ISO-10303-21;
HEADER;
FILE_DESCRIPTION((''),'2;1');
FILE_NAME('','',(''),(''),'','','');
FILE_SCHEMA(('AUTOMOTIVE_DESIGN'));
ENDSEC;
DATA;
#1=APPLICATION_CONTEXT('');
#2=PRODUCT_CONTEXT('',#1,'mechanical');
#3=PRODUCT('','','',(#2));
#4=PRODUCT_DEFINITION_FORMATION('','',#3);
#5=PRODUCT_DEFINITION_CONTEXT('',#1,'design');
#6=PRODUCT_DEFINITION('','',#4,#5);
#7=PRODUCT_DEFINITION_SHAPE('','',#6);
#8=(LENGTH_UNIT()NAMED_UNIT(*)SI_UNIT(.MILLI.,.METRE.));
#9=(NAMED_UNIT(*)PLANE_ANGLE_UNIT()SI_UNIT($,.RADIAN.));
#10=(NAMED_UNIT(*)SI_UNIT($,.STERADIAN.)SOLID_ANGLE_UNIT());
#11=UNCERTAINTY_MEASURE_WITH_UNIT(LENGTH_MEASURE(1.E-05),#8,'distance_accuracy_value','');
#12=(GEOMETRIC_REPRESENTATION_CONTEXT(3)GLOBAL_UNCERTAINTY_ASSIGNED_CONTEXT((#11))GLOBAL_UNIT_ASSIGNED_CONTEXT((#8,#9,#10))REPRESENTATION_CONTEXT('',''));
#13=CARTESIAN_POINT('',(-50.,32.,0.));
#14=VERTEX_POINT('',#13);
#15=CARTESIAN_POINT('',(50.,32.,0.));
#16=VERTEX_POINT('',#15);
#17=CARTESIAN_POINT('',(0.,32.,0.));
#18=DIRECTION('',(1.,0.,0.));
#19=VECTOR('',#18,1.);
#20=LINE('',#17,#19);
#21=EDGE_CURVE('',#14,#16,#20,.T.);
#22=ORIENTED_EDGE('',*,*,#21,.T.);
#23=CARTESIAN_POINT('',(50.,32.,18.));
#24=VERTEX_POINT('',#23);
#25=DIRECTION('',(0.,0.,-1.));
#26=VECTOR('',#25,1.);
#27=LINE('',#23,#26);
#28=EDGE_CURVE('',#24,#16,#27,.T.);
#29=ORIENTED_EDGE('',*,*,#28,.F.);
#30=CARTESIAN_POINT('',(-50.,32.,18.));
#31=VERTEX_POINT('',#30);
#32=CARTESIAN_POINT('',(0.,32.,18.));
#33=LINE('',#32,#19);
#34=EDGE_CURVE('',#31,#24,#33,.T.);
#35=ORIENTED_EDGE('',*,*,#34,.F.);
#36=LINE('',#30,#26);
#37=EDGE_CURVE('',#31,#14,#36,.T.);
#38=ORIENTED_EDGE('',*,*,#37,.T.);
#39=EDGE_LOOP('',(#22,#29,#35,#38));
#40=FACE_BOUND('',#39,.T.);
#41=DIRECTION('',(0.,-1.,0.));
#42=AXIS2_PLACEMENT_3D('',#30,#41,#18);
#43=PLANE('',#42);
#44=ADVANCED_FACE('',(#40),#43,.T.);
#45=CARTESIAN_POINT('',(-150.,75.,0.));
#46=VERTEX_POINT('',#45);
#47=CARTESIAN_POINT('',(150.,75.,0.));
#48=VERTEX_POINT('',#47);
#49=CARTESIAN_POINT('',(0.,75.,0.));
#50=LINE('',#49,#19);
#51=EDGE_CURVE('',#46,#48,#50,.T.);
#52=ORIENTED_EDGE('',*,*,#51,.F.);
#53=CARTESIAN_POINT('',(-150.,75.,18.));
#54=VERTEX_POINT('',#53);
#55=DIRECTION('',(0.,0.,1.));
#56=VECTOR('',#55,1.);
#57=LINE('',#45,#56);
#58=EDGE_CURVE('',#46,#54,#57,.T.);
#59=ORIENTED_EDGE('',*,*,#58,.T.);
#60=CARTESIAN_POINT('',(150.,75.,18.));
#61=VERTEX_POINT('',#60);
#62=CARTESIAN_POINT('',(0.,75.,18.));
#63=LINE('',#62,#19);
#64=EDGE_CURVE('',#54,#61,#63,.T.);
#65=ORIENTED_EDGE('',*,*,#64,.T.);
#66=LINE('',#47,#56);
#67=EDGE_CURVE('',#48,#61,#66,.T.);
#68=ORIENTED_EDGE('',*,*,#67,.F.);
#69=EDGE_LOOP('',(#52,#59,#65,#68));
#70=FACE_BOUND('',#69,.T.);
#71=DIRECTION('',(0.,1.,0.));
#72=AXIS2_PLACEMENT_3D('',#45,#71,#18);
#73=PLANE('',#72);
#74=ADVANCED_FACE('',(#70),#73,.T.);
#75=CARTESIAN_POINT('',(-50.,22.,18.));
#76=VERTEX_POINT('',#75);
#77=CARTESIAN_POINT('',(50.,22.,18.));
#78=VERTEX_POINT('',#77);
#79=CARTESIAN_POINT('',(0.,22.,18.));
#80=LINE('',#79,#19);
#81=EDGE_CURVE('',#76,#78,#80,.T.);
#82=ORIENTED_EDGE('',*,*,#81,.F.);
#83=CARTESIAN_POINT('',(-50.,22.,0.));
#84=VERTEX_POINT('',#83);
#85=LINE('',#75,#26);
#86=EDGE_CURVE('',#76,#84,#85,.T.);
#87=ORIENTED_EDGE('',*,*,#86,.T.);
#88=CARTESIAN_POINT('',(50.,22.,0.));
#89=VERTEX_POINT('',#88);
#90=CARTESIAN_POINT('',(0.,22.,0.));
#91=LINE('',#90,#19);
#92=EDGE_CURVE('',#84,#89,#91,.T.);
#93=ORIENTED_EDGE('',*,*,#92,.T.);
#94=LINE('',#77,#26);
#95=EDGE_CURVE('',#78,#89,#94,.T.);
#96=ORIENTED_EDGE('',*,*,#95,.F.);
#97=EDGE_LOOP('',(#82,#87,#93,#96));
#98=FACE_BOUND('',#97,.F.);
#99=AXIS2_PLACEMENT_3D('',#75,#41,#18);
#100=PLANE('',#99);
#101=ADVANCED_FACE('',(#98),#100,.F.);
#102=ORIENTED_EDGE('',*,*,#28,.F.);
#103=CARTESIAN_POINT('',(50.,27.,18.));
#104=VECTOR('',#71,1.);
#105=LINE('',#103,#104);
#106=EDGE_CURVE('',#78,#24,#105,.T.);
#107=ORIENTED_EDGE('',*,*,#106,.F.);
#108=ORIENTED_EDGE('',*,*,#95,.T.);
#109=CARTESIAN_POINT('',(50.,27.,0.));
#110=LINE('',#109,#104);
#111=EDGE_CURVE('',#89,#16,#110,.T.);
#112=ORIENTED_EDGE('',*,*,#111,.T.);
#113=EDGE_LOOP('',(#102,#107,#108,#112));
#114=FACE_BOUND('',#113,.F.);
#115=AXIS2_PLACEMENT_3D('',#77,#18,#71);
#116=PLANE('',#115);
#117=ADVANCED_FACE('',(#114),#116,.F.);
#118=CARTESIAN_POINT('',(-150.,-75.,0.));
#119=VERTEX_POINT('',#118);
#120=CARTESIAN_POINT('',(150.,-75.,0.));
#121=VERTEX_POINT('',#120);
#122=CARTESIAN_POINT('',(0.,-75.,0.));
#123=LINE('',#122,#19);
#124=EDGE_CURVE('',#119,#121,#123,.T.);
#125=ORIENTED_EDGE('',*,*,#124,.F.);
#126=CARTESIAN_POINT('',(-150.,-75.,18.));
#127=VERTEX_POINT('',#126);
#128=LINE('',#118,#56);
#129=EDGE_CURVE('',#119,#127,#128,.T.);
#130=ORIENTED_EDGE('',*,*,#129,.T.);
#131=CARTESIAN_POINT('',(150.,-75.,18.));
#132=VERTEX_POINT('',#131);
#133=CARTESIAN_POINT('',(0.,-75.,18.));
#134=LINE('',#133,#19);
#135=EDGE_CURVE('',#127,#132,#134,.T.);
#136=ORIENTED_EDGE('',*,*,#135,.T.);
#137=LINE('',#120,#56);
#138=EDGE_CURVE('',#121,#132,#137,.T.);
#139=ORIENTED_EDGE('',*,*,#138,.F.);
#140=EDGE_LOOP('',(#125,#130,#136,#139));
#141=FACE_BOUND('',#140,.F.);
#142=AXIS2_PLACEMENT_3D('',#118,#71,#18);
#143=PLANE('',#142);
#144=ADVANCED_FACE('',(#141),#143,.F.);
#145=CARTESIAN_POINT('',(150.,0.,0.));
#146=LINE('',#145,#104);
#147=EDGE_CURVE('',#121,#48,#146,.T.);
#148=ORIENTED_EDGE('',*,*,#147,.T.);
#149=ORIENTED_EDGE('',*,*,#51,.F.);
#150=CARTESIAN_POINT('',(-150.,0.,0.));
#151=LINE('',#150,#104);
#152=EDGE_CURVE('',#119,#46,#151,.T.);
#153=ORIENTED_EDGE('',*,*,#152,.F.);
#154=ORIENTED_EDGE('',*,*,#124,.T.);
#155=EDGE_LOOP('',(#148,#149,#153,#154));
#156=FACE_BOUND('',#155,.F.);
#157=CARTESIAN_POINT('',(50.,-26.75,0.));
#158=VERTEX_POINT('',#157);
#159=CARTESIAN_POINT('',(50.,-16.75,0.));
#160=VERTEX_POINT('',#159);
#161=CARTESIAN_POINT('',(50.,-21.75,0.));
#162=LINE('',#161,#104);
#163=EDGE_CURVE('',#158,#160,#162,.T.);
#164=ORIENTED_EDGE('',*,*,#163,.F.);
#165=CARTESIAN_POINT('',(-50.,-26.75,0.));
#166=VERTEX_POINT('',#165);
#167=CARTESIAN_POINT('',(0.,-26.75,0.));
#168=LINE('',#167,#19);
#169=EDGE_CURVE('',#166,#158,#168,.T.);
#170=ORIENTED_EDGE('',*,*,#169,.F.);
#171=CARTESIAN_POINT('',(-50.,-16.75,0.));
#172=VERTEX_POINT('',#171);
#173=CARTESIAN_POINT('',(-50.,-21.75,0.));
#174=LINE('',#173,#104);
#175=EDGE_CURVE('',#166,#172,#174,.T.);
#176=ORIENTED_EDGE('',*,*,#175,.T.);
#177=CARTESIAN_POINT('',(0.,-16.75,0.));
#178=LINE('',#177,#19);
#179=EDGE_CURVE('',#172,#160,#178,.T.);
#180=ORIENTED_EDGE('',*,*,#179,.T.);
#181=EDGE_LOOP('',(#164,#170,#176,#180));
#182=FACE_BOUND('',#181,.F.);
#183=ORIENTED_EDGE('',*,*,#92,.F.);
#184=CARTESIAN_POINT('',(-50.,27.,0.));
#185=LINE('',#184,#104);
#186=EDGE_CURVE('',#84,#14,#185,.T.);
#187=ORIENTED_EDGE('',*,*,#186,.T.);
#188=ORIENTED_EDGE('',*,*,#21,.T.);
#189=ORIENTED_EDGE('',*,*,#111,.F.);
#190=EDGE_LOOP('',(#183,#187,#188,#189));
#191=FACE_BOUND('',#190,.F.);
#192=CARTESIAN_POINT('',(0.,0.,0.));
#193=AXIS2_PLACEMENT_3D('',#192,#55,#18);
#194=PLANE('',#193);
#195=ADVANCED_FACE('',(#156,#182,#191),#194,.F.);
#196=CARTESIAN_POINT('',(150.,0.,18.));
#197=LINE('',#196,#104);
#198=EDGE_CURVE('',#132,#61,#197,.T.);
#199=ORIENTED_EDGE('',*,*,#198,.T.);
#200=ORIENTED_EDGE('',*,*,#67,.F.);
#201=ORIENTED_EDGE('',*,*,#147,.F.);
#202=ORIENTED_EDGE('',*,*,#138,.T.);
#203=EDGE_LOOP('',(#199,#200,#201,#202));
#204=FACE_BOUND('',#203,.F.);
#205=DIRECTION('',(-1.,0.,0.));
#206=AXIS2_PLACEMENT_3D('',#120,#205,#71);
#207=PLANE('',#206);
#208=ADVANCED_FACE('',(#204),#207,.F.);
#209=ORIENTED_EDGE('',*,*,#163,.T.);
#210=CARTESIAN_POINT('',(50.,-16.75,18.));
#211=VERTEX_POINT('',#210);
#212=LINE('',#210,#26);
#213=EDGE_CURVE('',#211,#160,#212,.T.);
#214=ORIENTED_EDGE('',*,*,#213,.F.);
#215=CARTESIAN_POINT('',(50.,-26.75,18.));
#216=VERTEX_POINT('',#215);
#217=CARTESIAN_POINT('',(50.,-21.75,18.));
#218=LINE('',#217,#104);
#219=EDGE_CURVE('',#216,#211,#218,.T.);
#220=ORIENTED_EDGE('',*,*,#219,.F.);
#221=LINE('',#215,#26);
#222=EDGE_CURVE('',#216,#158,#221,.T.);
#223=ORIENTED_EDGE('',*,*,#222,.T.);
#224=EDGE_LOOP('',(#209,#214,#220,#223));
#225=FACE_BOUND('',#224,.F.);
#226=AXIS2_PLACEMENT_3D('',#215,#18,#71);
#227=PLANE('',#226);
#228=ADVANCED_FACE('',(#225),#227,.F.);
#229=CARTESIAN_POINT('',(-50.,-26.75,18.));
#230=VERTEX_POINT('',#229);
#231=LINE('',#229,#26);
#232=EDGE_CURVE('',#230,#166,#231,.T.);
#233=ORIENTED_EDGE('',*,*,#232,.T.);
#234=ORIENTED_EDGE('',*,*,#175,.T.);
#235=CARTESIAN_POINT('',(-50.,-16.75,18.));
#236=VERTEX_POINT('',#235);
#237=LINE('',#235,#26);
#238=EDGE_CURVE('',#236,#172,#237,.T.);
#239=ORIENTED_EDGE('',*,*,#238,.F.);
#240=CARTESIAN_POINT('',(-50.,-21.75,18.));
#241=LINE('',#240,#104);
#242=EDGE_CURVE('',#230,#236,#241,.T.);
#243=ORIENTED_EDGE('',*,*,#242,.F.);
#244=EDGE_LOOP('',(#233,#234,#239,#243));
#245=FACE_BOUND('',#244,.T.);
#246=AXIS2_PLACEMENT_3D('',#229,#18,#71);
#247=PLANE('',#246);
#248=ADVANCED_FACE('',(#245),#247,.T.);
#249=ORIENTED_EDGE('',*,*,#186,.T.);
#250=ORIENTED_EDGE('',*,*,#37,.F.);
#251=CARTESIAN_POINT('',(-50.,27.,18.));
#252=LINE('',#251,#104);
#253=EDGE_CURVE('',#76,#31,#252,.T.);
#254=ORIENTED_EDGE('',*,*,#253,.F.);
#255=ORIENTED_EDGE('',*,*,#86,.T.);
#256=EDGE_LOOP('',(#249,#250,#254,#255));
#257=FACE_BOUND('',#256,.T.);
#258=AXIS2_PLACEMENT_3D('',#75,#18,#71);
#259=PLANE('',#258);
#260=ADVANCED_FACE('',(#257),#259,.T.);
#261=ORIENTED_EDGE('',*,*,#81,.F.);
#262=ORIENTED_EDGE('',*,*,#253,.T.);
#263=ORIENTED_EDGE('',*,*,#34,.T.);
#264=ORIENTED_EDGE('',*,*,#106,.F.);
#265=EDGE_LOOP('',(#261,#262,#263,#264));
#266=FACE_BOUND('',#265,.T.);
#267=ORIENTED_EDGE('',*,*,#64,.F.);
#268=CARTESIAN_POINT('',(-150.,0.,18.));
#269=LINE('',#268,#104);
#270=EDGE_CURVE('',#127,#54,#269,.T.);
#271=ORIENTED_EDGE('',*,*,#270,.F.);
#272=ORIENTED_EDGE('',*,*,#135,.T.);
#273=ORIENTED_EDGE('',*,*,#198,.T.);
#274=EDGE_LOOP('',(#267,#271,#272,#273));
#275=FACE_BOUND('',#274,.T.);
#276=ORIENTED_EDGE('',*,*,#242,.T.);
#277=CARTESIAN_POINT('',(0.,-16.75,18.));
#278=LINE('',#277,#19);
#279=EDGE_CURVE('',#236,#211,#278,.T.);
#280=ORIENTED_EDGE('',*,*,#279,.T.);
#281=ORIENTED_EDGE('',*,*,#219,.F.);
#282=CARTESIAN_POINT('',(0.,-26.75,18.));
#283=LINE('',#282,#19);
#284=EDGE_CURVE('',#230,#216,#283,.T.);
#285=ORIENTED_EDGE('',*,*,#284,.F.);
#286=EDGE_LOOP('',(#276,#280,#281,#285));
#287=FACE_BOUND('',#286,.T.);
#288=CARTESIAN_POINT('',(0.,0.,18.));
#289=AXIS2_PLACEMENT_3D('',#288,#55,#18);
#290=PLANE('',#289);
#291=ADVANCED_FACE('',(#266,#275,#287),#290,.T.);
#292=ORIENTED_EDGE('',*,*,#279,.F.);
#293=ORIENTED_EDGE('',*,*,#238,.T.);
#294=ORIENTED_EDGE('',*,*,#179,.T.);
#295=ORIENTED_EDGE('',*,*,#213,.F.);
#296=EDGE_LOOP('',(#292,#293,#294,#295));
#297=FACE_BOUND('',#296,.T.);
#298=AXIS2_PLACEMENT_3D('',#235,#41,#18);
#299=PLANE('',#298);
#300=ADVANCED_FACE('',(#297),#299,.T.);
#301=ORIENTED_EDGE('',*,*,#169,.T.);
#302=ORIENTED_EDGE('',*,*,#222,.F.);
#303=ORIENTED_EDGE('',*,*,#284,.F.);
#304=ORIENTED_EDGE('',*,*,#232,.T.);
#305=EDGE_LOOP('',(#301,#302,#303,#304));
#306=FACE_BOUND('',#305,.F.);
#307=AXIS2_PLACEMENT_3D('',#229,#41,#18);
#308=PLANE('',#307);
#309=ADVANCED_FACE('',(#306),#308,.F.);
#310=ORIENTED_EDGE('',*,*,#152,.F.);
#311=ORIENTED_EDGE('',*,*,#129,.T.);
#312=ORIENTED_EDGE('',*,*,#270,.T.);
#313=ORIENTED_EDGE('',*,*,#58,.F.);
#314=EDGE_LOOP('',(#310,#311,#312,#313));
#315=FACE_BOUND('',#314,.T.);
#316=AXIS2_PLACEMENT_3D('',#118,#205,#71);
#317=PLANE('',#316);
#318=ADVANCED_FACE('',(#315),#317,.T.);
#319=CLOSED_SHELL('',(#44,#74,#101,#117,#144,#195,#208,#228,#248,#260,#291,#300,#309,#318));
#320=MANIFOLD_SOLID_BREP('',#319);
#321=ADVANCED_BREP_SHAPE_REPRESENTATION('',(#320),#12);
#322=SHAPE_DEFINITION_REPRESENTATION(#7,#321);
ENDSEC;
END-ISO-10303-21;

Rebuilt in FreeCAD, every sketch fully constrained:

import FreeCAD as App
import Part
import Sketcher

V = App.Vector
Q = App.Units.Quantity

doc = App.newDocument("Part")
body = doc.addObject("PartDesign::Body", "Body")

sketch1 = body.newObject("Sketcher::SketchObject", "Sketch")
sketch1.AttachmentSupport = (doc.getObject("XY_Plane"), [""])
sketch1.MapMode = "FlatFace"
sketch1.addGeometry(Part.LineSegment(V(-150, 75, 0), V(-150, -75, 0)), False)
sketch1.addGeometry(Part.LineSegment(V(-150, -75, 0), V(150, -75, 0)), False)
sketch1.addGeometry(Part.LineSegment(V(150, -75, 0), V(150, 75, 0)), False)
sketch1.addGeometry(Part.LineSegment(V(150, 75, 0), V(-150, 75, 0)), False)
sketch1.addConstraint(Sketcher.Constraint("Coincident", 0, 2, 1, 1))
sketch1.addConstraint(Sketcher.Constraint("Coincident", 1, 2, 2, 1))
sketch1.addConstraint(Sketcher.Constraint("Coincident", 2, 2, 3, 1))
sketch1.addConstraint(Sketcher.Constraint("Coincident", 3, 2, 0, 1))
sketch1.addConstraint(Sketcher.Constraint("Vertical", 0))
sketch1.addConstraint(Sketcher.Constraint("Horizontal", 1))
sketch1.addConstraint(Sketcher.Constraint("Vertical", 2))
sketch1.addConstraint(Sketcher.Constraint("Horizontal", 3))
sketch1.addConstraint(Sketcher.Constraint("Symmetric", 0, 2, 2, 2, -1, 1))
sketch1.addConstraint(Sketcher.Constraint("DistanceX", 1, 1, 1, 2, Q("300 mm")))
sketch1.addConstraint(Sketcher.Constraint("DistanceY", 0, 2, 0, 1, Q("150 mm")))
pad1 = body.newObject("PartDesign::Pad", "Pad")
pad1.Profile = sketch1
pad1.Length = 18

sketch2 = body.newObject("Sketcher::SketchObject", "Sketch001")
sketch2.AttachmentSupport = (doc.getObject("XY_Plane"), [""])
sketch2.MapMode = "FlatFace"
sketch2.AttachmentOffset = App.Placement(V(0, 0, 18), App.Rotation())
sketch2.addGeometry(Part.LineSegment(V(-50, -17, 0), V(-50, -27, 0)), False)
sketch2.addGeometry(Part.LineSegment(V(-50, -27, 0), V(50, -27, 0)), False)
sketch2.addGeometry(Part.LineSegment(V(50, -27, 0), V(50, -17, 0)), False)
sketch2.addGeometry(Part.LineSegment(V(50, -17, 0), V(-50, -17, 0)), False)
sketch2.addGeometry(Part.LineSegment(V(-50, 32, 0), V(-50, 22, 0)), False)
sketch2.addGeometry(Part.LineSegment(V(-50, 22, 0), V(50, 22, 0)), False)
sketch2.addGeometry(Part.LineSegment(V(50, 22, 0), V(50, 32, 0)), False)
sketch2.addGeometry(Part.LineSegment(V(50, 32, 0), V(-50, 32, 0)), False)
sketch2.addConstraint(Sketcher.Constraint("Coincident", 0, 2, 1, 1))
sketch2.addConstraint(Sketcher.Constraint("Coincident", 1, 2, 2, 1))
sketch2.addConstraint(Sketcher.Constraint("Coincident", 2, 2, 3, 1))
sketch2.addConstraint(Sketcher.Constraint("Coincident", 3, 2, 0, 1))
sketch2.addConstraint(Sketcher.Constraint("Coincident", 4, 2, 5, 1))
sketch2.addConstraint(Sketcher.Constraint("Coincident", 5, 2, 6, 1))
sketch2.addConstraint(Sketcher.Constraint("Coincident", 6, 2, 7, 1))
sketch2.addConstraint(Sketcher.Constraint("Coincident", 7, 2, 4, 1))
sketch2.addConstraint(Sketcher.Constraint("Vertical", 0))
sketch2.addConstraint(Sketcher.Constraint("Horizontal", 1))
sketch2.addConstraint(Sketcher.Constraint("Vertical", 2))
sketch2.addConstraint(Sketcher.Constraint("Horizontal", 3))
sketch2.addConstraint(Sketcher.Constraint("Vertical", 4))
sketch2.addConstraint(Sketcher.Constraint("Horizontal", 5))
sketch2.addConstraint(Sketcher.Constraint("Vertical", 6))
sketch2.addConstraint(Sketcher.Constraint("Horizontal", 7))
sketch2.addConstraint(Sketcher.Constraint("Vertical", 3, 2, 4, 2))
sketch2.addConstraint(Sketcher.Constraint("Vertical", 2, 2, 5, 2))
sketch2.addConstraint(Sketcher.Constraint("Equal", 2, 4))
sketch2.addConstraint(Sketcher.Constraint("DistanceX", 1, 1, 1, 2, Q("100 mm")))
sketch2.addConstraint(Sketcher.Constraint("DistanceY", 0, 2, 0, 1, Q("10 mm")))
sketch2.addConstraint(Sketcher.Constraint("DistanceX", 0, 2, -1, 1, Q("50 mm")))
sketch2.addConstraint(Sketcher.Constraint("DistanceY", -1, 1, 4, 2, Q("22 mm")))
sketch2.addConstraint(Sketcher.Constraint("DistanceY", 0, 2, -1, 1, Q("26.75 mm")))
pocket1 = body.newObject("PartDesign::Pocket", "Pocket")
pocket1.Profile = sketch2
pocket1.Length = 18

doc.recompute()
